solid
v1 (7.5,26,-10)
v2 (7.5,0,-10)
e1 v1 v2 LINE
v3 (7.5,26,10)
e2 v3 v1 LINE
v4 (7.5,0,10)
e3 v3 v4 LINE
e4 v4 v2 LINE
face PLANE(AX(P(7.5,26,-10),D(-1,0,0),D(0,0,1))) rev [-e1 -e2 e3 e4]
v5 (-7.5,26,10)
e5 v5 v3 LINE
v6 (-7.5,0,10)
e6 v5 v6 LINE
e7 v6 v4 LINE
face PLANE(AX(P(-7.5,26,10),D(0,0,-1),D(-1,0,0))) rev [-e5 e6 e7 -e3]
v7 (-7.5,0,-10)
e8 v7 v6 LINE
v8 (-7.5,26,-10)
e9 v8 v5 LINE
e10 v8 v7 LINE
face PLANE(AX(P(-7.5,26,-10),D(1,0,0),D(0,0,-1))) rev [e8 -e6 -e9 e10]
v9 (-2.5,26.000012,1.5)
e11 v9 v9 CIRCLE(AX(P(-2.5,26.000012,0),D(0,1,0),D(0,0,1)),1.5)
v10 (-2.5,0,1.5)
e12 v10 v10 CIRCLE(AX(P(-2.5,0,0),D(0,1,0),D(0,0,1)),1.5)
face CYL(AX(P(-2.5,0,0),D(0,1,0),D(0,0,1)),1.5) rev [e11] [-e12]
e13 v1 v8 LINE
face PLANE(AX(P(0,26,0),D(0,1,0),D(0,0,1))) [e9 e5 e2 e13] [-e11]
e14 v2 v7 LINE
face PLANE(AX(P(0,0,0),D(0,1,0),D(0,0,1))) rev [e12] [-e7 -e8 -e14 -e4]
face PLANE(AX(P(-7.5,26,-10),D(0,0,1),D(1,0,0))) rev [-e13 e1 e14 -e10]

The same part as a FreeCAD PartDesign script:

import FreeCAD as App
import Part
import Sketcher

doc = App.newDocument("Part")
params = doc.addObject("Spreadsheet::Sheet", "Params")
for row, (alias, value) in enumerate([
    ("sketch1_width", "15 mm"),
    ("sketch1_height", "20 mm"),
    ("pad1_length", "26 mm"),
    ("sketch2_diameter", "3 mm"),
], start=1):
    params.set(f"A{row}", alias)
    params.set(f"B{row}", "=" + value)
    params.setAlias(f"B{row}", alias)

body = doc.addObject("PartDesign::Body", "Body")

sketch1 = body.newObject("Sketcher::SketchObject", "Sketch")
sketch1.AttachmentSupport = (doc.getObject("XZ_Plane"), [""])
sketch1.MapMode = "FlatFace"
sketch1.addGeometry([
    Part.LineSegment(App.Vector(-8, -10, 0), App.Vector(-8, 10, 0)),
    Part.LineSegment(App.Vector(-8, 10, 0), App.Vector(8, 10, 0)),
    Part.LineSegment(App.Vector(8, 10, 0), App.Vector(8, -10, 0)),
    Part.LineSegment(App.Vector(8, -10, 0), App.Vector(-8, -10, 0)),
], False)
sketch1.addConstraint([
    Sketcher.Constraint("Coincident", 0, 2, 1, 1),
    Sketcher.Constraint("Coincident", 1, 2, 2, 1),
    Sketcher.Constraint("Coincident", 2, 2, 3, 1),
    Sketcher.Constraint("Coincident", 3, 2, 0, 1),
    Sketcher.Constraint("Vertical", 0),
    Sketcher.Constraint("Horizontal", 1),
    Sketcher.Constraint("Vertical", 2),
    Sketcher.Constraint("Horizontal", 3),
    Sketcher.Constraint("Symmetric", 0, 2, 2, 2, -1, 1),
    Sketcher.Constraint("DistanceX", 1, 1, 1, 2, 15.0),
    Sketcher.Constraint("DistanceY", 0, 1, 0, 2, 20.0),
])
sketch1.setExpression("Constraints[9]", "Params.sketch1_width")
sketch1.setExpression("Constraints[10]", "Params.sketch1_height")
pad1 = body.newObject("PartDesign::Pad", "Pad")
pad1.Profile = sketch1
pad1.setExpression("Length", "Params.pad1_length")
pad1.Reversed = True

sketch2 = body.newObject("Sketcher::SketchObject", "Sketch001")
sketch2.AttachmentSupport = (doc.getObject("XZ_Plane"), [""])
sketch2.MapMode = "FlatFace"
sketch2.AttachmentOffset = App.Placement(App.Vector(0, 0, -26), App.Rotation())
sketch2.addGeometry(Part.Circle(App.Vector(-2.5, 0, 0), App.Vector(0, 0, 1), 1.5), False)
sketch2.addConstraint([
    Sketcher.Constraint("PointOnObject", 0, 3, -1),
    Sketcher.Constraint("Diameter", 0, 3.0),
    Sketcher.Constraint("DistanceX", 0, 3, -1, 1, 2.5),
])
sketch2.setExpression("Constraints[1]", "Params.sketch2_diameter")
pocket1 = body.newObject("PartDesign::Pocket", "Pocket")
pocket1.Profile = sketch2
pocket1.Type = "ThroughAll"
pocket1.Midplane = True

doc.recompute()
